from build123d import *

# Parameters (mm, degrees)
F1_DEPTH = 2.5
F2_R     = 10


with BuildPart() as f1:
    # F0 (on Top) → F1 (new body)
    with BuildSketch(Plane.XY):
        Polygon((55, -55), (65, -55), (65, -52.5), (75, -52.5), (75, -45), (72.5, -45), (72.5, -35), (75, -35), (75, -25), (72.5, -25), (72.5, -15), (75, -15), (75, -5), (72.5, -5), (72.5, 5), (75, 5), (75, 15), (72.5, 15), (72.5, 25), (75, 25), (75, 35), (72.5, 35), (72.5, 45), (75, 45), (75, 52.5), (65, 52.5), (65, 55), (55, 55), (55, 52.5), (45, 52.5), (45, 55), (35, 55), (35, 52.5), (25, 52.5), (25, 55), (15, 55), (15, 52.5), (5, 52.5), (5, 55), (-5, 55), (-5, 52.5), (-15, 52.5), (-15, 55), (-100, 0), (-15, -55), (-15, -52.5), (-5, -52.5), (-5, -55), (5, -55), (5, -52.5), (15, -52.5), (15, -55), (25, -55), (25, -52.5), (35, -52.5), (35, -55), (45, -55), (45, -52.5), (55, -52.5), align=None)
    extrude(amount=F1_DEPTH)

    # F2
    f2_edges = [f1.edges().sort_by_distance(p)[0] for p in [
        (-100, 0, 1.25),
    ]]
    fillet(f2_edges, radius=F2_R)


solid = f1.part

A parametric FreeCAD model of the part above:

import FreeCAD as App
import Part
import Sketcher


def edges_at(feature, points):
    """Names of the edges that pass closest to the given points."""
    edges = feature.Shape.Edges
    near = lambda p: min(range(len(edges)), key=lambda i: edges[i].distToShape(Part.Vertex(*p))[0])
    return sorted({f"Edge{near(p) + 1}" for p in points})

doc = App.newDocument("Part")
body = doc.addObject("PartDesign::Body", "Body")

sketch1 = doc.addObject("Sketcher::SketchObject", "Sketch")
body.addObject(sketch1)
sketch1.AttachmentSupport = (doc.XY_Plane, [""])
sketch1.MapMode = "FlatFace"
sketch1.addGeometry([
    Part.LineSegment(App.Vector(55, -55, 0), App.Vector(65, -55, 0)),
    Part.LineSegment(App.Vector(65, -55, 0), App.Vector(65, -52.5, 0)),
    Part.LineSegment(App.Vector(65, -52.5, 0), App.Vector(75, -52.5, 0)),
    Part.LineSegment(App.Vector(75, -52.5, 0), App.Vector(75, -45, 0)),
    Part.LineSegment(App.Vector(75, -45, 0), App.Vector(72.5, -45, 0)),
    Part.LineSegment(App.Vector(72.5, -45, 0), App.Vector(72.5, -35, 0)),
    Part.LineSegment(App.Vector(72.5, -35, 0), App.Vector(75, -35, 0)),
    Part.LineSegment(App.Vector(75, -35, 0), App.Vector(75, -25, 0)),
    Part.LineSegment(App.Vector(75, -25, 0), App.Vector(72.5, -25, 0)),
    Part.LineSegment(App.Vector(72.5, -25, 0), App.Vector(72.5, -15, 0)),
    Part.LineSegment(App.Vector(72.5, -15, 0), App.Vector(75, -15, 0)),
    Part.LineSegment(App.Vector(75, -15, 0), App.Vector(75, -5, 0)),
    Part.LineSegment(App.Vector(75, -5, 0), App.Vector(72.5, -5, 0)),
    Part.LineSegment(App.Vector(72.5, -5, 0), App.Vector(72.5, 5, 0)),
    Part.LineSegment(App.Vector(72.5, 5, 0), App.Vector(75, 5, 0)),
    Part.LineSegment(App.Vector(75, 5, 0), App.Vector(75, 15, 0)),
    Part.LineSegment(App.Vector(75, 15, 0), App.Vector(72.5, 15, 0)),
    Part.LineSegment(App.Vector(72.5, 15, 0), App.Vector(72.5, 25, 0)),
    Part.LineSegment(App.Vector(72.5, 25, 0), App.Vector(75, 25, 0)),
    Part.LineSegment(App.Vector(75, 25, 0), App.Vector(75, 35, 0)),
    Part.LineSegment(App.Vector(75, 35, 0), App.Vector(72.5, 35, 0)),
    Part.LineSegment(App.Vector(72.5, 35, 0), App.Vector(72.5, 45, 0)),
    Part.LineSegment(App.Vector(72.5, 45, 0), App.Vector(75, 45, 0)),
    Part.LineSegment(App.Vector(75, 45, 0), App.Vector(75, 52.5, 0)),
    Part.LineSegment(App.Vector(75, 52.5, 0), App.Vector(65, 52.5, 0)),
    Part.LineSegment(App.Vector(65, 52.5, 0), App.Vector(65, 55, 0)),
    Part.LineSegment(App.Vector(65, 55, 0), App.Vector(55, 55, 0)),
    Part.LineSegment(App.Vector(55, 55, 0), App.Vector(55, 52.5, 0)),
    Part.LineSegment(App.Vector(55, 52.5, 0), App.Vector(45, 52.5, 0)),
    Part.LineSegment(App.Vector(45, 52.5, 0), App.Vector(45, 55, 0)),
    Part.LineSegment(App.Vector(45, 55, 0), App.Vector(35, 55, 0)),
    Part.LineSegment(App.Vector(35, 55, 0), App.Vector(35, 52.5, 0)),
    Part.LineSegment(App.Vector(35, 52.5, 0), App.Vector(25, 52.5, 0)),
    Part.LineSegment(App.Vector(25, 52.5, 0), App.Vector(25, 55, 0)),
    Part.LineSegment(App.Vector(25, 55, 0), App.Vector(15, 55, 0)),
    Part.LineSegment(App.Vector(15, 55, 0), App.Vector(15, 52.5, 0)),
    Part.LineSegment(App.Vector(15, 52.5, 0), App.Vector(5, 52.5, 0)),
    Part.LineSegment(App.Vector(5, 52.5, 0), App.Vector(5, 55, 0)),
    Part.LineSegment(App.Vector(5, 55, 0), App.Vector(-5, 55, 0)),
    Part.LineSegment(App.Vector(-5, 55, 0), App.Vector(-5, 52.5, 0)),
    Part.LineSegment(App.Vector(-5, 52.5, 0), App.Vector(-15, 52.5, 0)),
    Part.LineSegment(App.Vector(-15, 52.5, 0), App.Vector(-15, 55, 0)),
    Part.LineSegment(App.Vector(-15, 55, 0), App.Vector(-100, 0, 0)),
    Part.LineSegment(App.Vector(-100, 0, 0), App.Vector(-15, -55, 0)),
    Part.LineSegment(App.Vector(-15, -55, 0), App.Vector(-15, -52.5, 0)),
    Part.LineSegment(App.Vector(-15, -52.5, 0), App.Vector(-5, -52.5, 0)),
    Part.LineSegment(App.Vector(-5, -52.5, 0), App.Vector(-5, -55, 0)),
    Part.LineSegment(App.Vector(-5, -55, 0), App.Vector(5, -55, 0)),
    Part.LineSegment(App.Vector(5, -55, 0), App.Vector(5, -52.5, 0)),
    Part.LineSegment(App.Vector(5, -52.5, 0), App.Vector(15, -52.5, 0)),
    Part.LineSegment(App.Vector(15, -52.5, 0), App.Vector(15, -55, 0)),
    Part.LineSegment(App.Vector(15, -55, 0), App.Vector(25, -55, 0)),
    Part.LineSegment(App.Vector(25, -55, 0), App.Vector(25, -52.5, 0)),
    Part.LineSegment(App.Vector(25, -52.5, 0), App.Vector(35, -52.5, 0)),
    Part.LineSegment(App.Vector(35, -52.5, 0), App.Vector(35, -55, 0)),
    Part.LineSegment(App.Vector(35, -55, 0), App.Vector(45, -55, 0)),
    Part.LineSegment(App.Vector(45, -55, 0), App.Vector(45, -52.5, 0)),
    Part.LineSegment(App.Vector(45, -52.5, 0), App.Vector(55, -52.5, 0)),
    Part.LineSegment(App.Vector(55, -52.5, 0), App.Vector(55, -55, 0)),
], False)
sketch1.addConstraint([
    Sketcher.Constraint("Coincident", 0, 2, 1, 1),
    Sketcher.Constraint("Coincident", 1, 2, 2, 1),
    Sketcher.Constraint("Coincident", 2, 2, 3, 1),
    Sketcher.Constraint("Coincident", 3, 2, 4, 1),
    Sketcher.Constraint("Coincident", 4, 2, 5, 1),
    Sketcher.Constraint("Coincident", 5, 2, 6, 1),
    Sketcher.Constraint("Coincident", 6, 2, 7, 1),
    Sketcher.Constraint("Coincident", 7, 2, 8, 1),
    Sketcher.Constraint("Coincident", 8, 2, 9, 1),
    Sketcher.Constraint("Coincident", 9, 2, 10, 1),
    Sketcher.Constraint("Coincident", 10, 2, 11, 1),
    Sketcher.Constraint("Coincident", 11, 2, 12, 1),
    Sketcher.Constraint("Coincident", 12, 2, 13, 1),
    Sketcher.Constraint("Coincident", 13, 2, 14, 1),
    Sketcher.Constraint("Coincident", 14, 2, 15, 1),
    Sketcher.Constraint("Coincident", 15, 2, 16, 1),
    Sketcher.Constraint("Coincident", 16, 2, 17, 1),
    Sketcher.Constraint("Coincident", 17, 2, 18, 1),
    Sketcher.Constraint("Coincident", 18, 2, 19, 1),
    Sketcher.Constraint("Coincident", 19, 2, 20, 1),
    Sketcher.Constraint("Coincident", 20, 2, 21, 1),
    Sketcher.Constraint("Coincident", 21, 2, 22, 1),
    Sketcher.Constraint("Coincident", 22, 2, 23, 1),
    Sketcher.Constraint("Coincident", 23, 2, 24, 1),
    Sketcher.Constraint("Coincident", 24, 2, 25, 1),
    Sketcher.Constraint("Coincident", 25, 2, 26, 1),
    Sketcher.Constraint("Coincident", 26, 2, 27, 1),
    Sketcher.Constraint("Coincident", 27, 2, 28, 1),
    Sketcher.Constraint("Coincident", 28, 2, 29, 1),
    Sketcher.Constraint("Coincident", 29, 2, 30, 1),
    Sketcher.Constraint("Coincident", 30, 2, 31, 1),
    Sketcher.Constraint("Coincident", 31, 2, 32, 1),
    Sketcher.Constraint("Coincident", 32, 2, 33, 1),
    Sketcher.Constraint("Coincident", 33, 2, 34, 1),
    Sketcher.Constraint("Coincident", 34, 2, 35, 1),
    Sketcher.Constraint("Coincident", 35, 2, 36, 1),
    Sketcher.Constraint("Coincident", 36, 2, 37, 1),
    Sketcher.Constraint("Coincident", 37, 2, 38, 1),
    Sketcher.Constraint("Coincident", 38, 2, 39, 1),
    Sketcher.Constraint("Coincident", 39, 2, 40, 1),
    Sketcher.Constraint("Coincident", 40, 2, 41, 1),
    Sketcher.Constraint("Coincident", 41, 2, 42, 1),
    Sketcher.Constraint("Coincident", 42, 2, 43, 1),
    Sketcher.Constraint("Coincident", 43, 2, 44, 1),
    Sketcher.Constraint("Coincident", 44, 2, 45, 1),
    Sketcher.Constraint("Coincident", 45, 2, 46, 1),
    Sketcher.Constraint("Coincident", 46, 2, 47, 1),
    Sketcher.Constraint("Coincident", 47, 2, 48, 1),
    Sketcher.Constraint("Coincident", 48, 2, 49, 1),
    Sketcher.Constraint("Coincident", 49, 2, 50, 1),
    Sketcher.Constraint("Coincident", 50, 2, 51, 1),
    Sketcher.Constraint("Coincident", 51, 2, 52, 1),
    Sketcher.Constraint("Coincident", 52, 2, 53, 1),
    Sketcher.Constraint("Coincident", 53, 2, 54, 1),
    Sketcher.Constraint("Coincident", 54, 2, 55, 1),
    Sketcher.Constraint("Coincident", 55, 2, 56, 1),
    Sketcher.Constraint("Coincident", 56, 2, 57, 1),
    Sketcher.Constraint("Coincident", 57, 2, 58, 1),
    Sketcher.Constraint("Coincident", 58, 2, 0, 1),
    Sketcher.Constraint("Horizontal", 0),
    Sketcher.Constraint("Vertical", 1),
    Sketcher.Constraint("Horizontal", 2),
    Sketcher.Constraint("Vertical", 3),
    Sketcher.Constraint("Horizontal", 4),
    Sketcher.Constraint("Vertical", 5),
    Sketcher.Constraint("Horizontal", 6),
    Sketcher.Constraint("Vertical", 7),
    Sketcher.Constraint("Horizontal", 8),
    Sketcher.Constraint("Vertical", 9),
    Sketcher.Constraint("Horizontal", 10),
    Sketcher.Constraint("Vertical", 11),
    Sketcher.Constraint("Horizontal", 12),
    Sketcher.Constraint("Vertical", 13),
    Sketcher.Constraint("Horizontal", 14),
    Sketcher.Constraint("Vertical", 15),
    Sketcher.Constraint("Horizontal", 16),
    Sketcher.Constraint("Vertical", 17),
    Sketcher.Constraint("Horizontal", 18),
    Sketcher.Constraint("Vertical", 19),
    Sketcher.Constraint("Horizontal", 20),
    Sketcher.Constraint("Vertical", 21),
    Sketcher.Constraint("Horizontal", 22),
    Sketcher.Constraint("Vertical", 23),
    Sketcher.Constraint("Horizontal", 24),
    Sketcher.Constraint("Vertical", 25),
    Sketcher.Constraint("Horizontal", 26),
    Sketcher.Constraint("Vertical", 27),
    Sketcher.Constraint("Horizontal", 28),
    Sketcher.Constraint("Vertical", 29),
    Sketcher.Constraint("Horizontal", 30),
    Sketcher.Constraint("Vertical", 31),
    Sketcher.Constraint("Horizontal", 32),
    Sketcher.Constraint("Vertical", 33),
    Sketcher.Constraint("Horizontal", 34),
    Sketcher.Constraint("Vertical", 35),
    Sketcher.Constraint("Horizontal", 36),
    Sketcher.Constraint("Vertical", 37),
    Sketcher.Constraint("Horizontal", 38),
    Sketcher.Constraint("Vertical", 39),
    Sketcher.Constraint("Horizontal", 40),
    Sketcher.Constraint("Vertical", 41),
    Sketcher.Constraint("Vertical", 44),
    Sketcher.Constraint("Horizontal", 45),
    Sketcher.Constraint("Vertical", 46),
    Sketcher.Constraint("Horizontal", 47),
    Sketcher.Constraint("Vertical", 48),
    Sketcher.Constraint("Horizontal", 49),
    Sketcher.Constraint("Vertical", 50),
    Sketcher.Constraint("Horizontal", 51),
    Sketcher.Constraint("Vertical", 52),
    Sketcher.Constraint("Horizontal", 53),
    Sketcher.Constraint("Vertical", 54),
    Sketcher.Constraint("Horizontal", 55),
    Sketcher.Constraint("Vertical", 56),
    Sketcher.Constraint("Horizontal", 57),
    Sketcher.Constraint("Vertical", 58),
    Sketcher.Constraint("Symmetric", 34, 2, 43, 2, -1, 1),
    Sketcher.Constraint("Symmetric", 36, 2, 45, 2, -1, 1),
    Sketcher.Constraint("Symmetric", 38, 2, 47, 2, -1, 1),
    Sketcher.Constraint("Symmetric", 40, 2, 49, 2, -1, 1),
    Sketcher.Constraint("Symmetric", 36, 2, 39, 2, -2),
    Sketcher.Constraint("Symmetric", 34, 2, 41, 2, -2),
    Sketcher.Constraint("Symmetric", 11, 2, 14, 2, -1),
    Sketcher.Constraint("Symmetric", 9, 2, 16, 2, -1),
    Sketcher.Constraint("Symmetric", 7, 2, 18, 2, -1),
    Sketcher.Constraint("Symmetric", 5, 2, 20, 2, -1),
    Sketcher.Constraint("Symmetric", 3, 2, 22, 2, -1),
    Sketcher.Constraint("Symmetric", 1, 2, 24, 2, -1),
    Sketcher.Constraint("Symmetric", 33, 2, 51, 2, -1),
    Sketcher.Constraint("Symmetric", 31, 2, 53, 2, -1),
    Sketcher.Constraint("Symmetric", 29, 2, 55, 2, -1),
    Sketcher.Constraint("Symmetric", 27, 2, 57, 2, -1),
    Sketcher.Constraint("PointOnObject", 42, 2, -1),
    Sketcher.Constraint("Horizontal", 24, 2, 27, 2),
    Sketcher.Constraint("Horizontal", 26, 2, 29, 2),
    Sketcher.Constraint("Horizontal", 28, 2, 31, 2),
    Sketcher.Constraint("Horizontal", 30, 2, 33, 2),
    Sketcher.Constraint("Horizontal", 32, 2, 35, 2),
    Sketcher.Constraint("Horizontal", 34, 2, 37, 2),
    Sketcher.Constraint("Horizontal", 0, 2, 43, 2),
    Sketcher.Constraint("Vertical", 3, 2, 6, 2),
    Sketcher.Constraint("Vertical", 5, 2, 8, 2),
    Sketcher.Constraint("Vertical", 7, 2, 10, 2),
    Sketcher.Constraint("Vertical", 9, 2, 12, 2),
    Sketcher.Constraint("Equal", 0, 2),
    Sketcher.Constraint("Equal", 26, 28),
    Sketcher.Constraint("Equal", 28, 30),
    Sketcher.Constraint("Equal", 30, 32),
    Sketcher.Constraint("Equal", 32, 34),
    Sketcher.Constraint("Equal", 34, 36),
    Sketcher.Constraint("Equal", 36, 38),
    Sketcher.Constraint("Equal", 22, 1),
    Sketcher.Constraint("Equal", 57, 5),
    Sketcher.Constraint("Equal", 5, 7),
    Sketcher.Constraint("Equal", 7, 9),
    Sketcher.Constraint("Equal", 9, 11),
    Sketcher.Constraint("Equal", 11, 13),
    Sketcher.Constraint("DistanceX", 0, 1, 0, 2, 10.0),
    Sketcher.Constraint("DistanceX", 4, 2, 4, 1, 2.5),
    Sketcher.Constraint("DistanceY", 3, 1, 3, 2, 7.5),
    Sketcher.Constraint("DistanceX", 42, 2, -1, 1, 100.0),
])
pad1 = doc.addObject("PartDesign::Pad", "Pad")
body.addObject(pad1)
pad1.Profile = sketch1
pad1.Length = 2.5
doc.recompute()

fillet = doc.addObject("PartDesign::Fillet", "Fillet")
body.addObject(fillet)
fillet.Base = (pad1, edges_at(pad1, [(-100, 0, 1.25)]))
fillet.Radius = 10

doc.recompute()
